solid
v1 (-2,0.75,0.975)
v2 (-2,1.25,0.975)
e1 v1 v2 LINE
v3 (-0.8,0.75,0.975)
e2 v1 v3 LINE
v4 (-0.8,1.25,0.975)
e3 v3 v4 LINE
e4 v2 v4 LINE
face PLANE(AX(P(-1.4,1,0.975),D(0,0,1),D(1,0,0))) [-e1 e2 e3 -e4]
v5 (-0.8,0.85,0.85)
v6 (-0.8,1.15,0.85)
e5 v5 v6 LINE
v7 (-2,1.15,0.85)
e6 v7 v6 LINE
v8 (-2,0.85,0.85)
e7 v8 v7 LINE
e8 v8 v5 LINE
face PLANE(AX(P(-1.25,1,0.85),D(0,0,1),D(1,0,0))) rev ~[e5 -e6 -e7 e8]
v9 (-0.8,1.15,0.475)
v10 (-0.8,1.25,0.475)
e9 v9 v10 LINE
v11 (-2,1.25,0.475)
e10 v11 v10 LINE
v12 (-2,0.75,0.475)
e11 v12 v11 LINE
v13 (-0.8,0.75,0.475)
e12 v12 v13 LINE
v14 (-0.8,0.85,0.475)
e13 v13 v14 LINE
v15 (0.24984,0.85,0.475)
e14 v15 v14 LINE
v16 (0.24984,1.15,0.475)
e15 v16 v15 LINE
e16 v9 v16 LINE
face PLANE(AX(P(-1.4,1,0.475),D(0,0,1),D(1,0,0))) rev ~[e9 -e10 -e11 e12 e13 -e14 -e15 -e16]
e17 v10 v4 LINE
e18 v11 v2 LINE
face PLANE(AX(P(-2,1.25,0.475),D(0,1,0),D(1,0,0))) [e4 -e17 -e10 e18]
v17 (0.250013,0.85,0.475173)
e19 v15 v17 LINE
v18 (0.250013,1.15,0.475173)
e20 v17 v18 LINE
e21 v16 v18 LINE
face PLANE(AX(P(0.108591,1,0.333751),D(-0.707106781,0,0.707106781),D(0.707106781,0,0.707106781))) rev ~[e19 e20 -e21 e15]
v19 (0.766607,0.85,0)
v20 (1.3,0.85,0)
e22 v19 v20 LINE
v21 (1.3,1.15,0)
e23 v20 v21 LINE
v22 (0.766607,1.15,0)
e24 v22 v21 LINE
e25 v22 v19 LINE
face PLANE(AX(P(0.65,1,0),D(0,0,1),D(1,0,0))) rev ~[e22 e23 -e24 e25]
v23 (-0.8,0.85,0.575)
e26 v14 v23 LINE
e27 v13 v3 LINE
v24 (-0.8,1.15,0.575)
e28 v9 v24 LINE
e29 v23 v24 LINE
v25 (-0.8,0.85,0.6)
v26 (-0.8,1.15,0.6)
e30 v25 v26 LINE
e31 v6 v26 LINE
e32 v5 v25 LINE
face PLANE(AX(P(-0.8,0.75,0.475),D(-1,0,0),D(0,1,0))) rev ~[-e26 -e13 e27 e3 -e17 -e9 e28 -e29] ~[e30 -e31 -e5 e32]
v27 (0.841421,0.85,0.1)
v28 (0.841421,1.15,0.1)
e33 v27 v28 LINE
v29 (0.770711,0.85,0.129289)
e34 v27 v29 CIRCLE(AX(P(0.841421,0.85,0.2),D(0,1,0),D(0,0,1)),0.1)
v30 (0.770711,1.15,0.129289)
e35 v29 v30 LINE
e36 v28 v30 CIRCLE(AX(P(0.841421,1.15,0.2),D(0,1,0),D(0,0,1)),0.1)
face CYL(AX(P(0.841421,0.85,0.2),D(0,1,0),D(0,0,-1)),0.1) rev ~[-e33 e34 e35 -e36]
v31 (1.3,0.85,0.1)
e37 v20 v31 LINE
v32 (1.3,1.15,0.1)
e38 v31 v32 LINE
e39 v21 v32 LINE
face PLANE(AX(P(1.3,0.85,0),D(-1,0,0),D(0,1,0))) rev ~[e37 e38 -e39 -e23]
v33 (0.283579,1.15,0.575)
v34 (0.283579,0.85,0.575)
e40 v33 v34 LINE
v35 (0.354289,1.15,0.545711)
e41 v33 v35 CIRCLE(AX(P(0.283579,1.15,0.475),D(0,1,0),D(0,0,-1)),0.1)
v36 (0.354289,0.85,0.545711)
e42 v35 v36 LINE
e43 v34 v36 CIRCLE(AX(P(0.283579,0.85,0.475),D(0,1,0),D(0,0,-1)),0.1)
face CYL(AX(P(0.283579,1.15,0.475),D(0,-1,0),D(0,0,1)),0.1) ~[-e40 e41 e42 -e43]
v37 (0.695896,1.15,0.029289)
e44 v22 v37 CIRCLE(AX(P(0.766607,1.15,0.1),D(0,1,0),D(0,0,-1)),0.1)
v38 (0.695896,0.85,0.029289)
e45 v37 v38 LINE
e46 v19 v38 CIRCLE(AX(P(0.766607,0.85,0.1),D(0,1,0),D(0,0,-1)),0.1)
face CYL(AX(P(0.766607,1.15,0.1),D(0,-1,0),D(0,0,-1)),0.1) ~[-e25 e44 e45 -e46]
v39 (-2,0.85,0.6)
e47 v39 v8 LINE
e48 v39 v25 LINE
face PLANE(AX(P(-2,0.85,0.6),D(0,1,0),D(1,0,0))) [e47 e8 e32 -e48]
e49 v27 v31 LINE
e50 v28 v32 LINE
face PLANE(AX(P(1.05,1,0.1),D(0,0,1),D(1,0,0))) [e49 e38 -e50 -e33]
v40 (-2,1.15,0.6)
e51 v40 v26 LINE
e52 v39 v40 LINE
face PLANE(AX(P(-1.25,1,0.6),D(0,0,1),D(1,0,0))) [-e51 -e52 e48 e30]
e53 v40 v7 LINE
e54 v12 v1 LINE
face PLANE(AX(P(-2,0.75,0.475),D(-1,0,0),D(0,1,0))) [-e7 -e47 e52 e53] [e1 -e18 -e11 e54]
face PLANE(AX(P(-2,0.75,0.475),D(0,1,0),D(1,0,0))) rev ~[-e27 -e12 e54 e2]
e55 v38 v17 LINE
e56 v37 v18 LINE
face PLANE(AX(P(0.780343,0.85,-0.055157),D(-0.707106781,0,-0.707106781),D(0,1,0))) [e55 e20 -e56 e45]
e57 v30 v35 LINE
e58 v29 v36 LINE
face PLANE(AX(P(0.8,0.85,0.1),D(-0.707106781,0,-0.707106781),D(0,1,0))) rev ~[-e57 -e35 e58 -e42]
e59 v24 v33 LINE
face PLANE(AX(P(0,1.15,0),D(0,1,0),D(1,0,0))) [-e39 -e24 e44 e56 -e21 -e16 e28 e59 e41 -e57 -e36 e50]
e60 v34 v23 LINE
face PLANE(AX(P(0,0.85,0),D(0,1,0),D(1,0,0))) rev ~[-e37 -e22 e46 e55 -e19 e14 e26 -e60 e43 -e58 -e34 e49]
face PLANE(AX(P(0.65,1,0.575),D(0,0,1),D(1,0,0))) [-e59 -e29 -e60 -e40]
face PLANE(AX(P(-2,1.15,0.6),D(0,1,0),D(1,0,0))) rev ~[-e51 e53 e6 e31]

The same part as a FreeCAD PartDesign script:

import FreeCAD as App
import Part
import Sketcher
Q = App.Units.Quantity


def edges_at(feature, points):
    """Names of the edges that pass closest to the given points."""
    edges = feature.Shape.Edges
    near = lambda p: min(range(len(edges)), key=lambda i: edges[i].distToShape(Part.Vertex(*p))[0])
    return sorted({f"Edge{near(p) + 1}" for p in points})

doc = App.newDocument("Part")
params = doc.addObject("Spreadsheet::Sheet", "Params")
for row, (alias, value) in enumerate([
    ("sketch1_width", "1.2 mm"),
    ("sketch1_height", "0.5 mm"),
    ("pad1_length", "0.5 mm"),
    ("sketch2_width", "1.5 mm"),
    ("sketch2_height", "0.3 mm"),
    ("pad2_length", "0.1 mm"),
    ("sketch3_width", "1.3 mm"),
    ("sketch3_height", "0.3 mm"),
    ("pad3_length", "0.575 mm"),
    ("sketch4_height", "0.3 mm"),
    ("sketch4_width", "0.25 mm"),
    ("pocket1_length", "0.475 mm"),
    ("sketch5_width", "0.5 mm"),
    ("sketch5_height", "0.3 mm"),
    ("pocket2_length", "0.5 mm"),
    ("sketch6_width", "0.5 mm"),
    ("sketch6_height", "0.3 mm"),
    ("pocket3_length", "0.75 mm"),
    ("sketch7_width", "0.4 mm"),
    ("sketch7_height", "0.3 mm"),
    ("pocket4_length", "0.75 mm"),
    ("fillet_radius", "0.1 mm"),
    ("fillet2_radius", "0.1 mm"),
    ("sketch8_width", "1.5 mm"),
    ("sketch8_height", "0.3 mm"),
    ("pocket5_length", "0.25 mm"),
    ("fillet3_radius", "0.1 mm"),
], start=1):
    params.set(f"A{row}", alias)
    params.set(f"B{row}", "=" + value)
    params.setAlias(f"B{row}", alias)

body = doc.addObject("PartDesign::Body", "Body")

# Sketch on XY plane
sketch1 = body.newObject("Sketcher::SketchObject", "Sketch")
sketch1.AttachmentSupport = (doc.getObject("XY_Plane"), [""])
sketch1.MapMode = "FlatFace"
sketch1.AttachmentOffset = App.Placement(App.Vector(0, 0, 0.475), App.Rotation())
sketch1.addGeometry([
    Part.LineSegment(App.Vector(-2, 4.75, 0), App.Vector(-2, 4.25, 0)),
    Part.LineSegment(App.Vector(-2, 4.25, 0), App.Vector(-0.8, 4.25, 0)),
    Part.LineSegment(App.Vector(-0.8, 4.25, 0), App.Vector(-0.8, 4.75, 0)),
    Part.LineSegment(App.Vector(-0.8, 4.75, 0), App.Vector(-2, 4.75, 0)),
], False)
sketch1.addConstraint([
    Sketcher.Constraint("Coincident", 0, 2, 1, 1),
    Sketcher.Constraint("Coincident", 1, 2, 2, 1),
    Sketcher.Constraint("Coincident", 2, 2, 3, 1),
    Sketcher.Constraint("Coincident", 3, 2, 0, 1),
    Sketcher.Constraint("Vertical", 0),
    Sketcher.Constraint("Horizontal", 1),
    Sketcher.Constraint("Vertical", 2),
    Sketcher.Constraint("Horizontal", 3),
    Sketcher.Constraint("DistanceX", 1, 1, 1, 2, Q("1.2 mm")),
    Sketcher.Constraint("DistanceY", 0, 2, 0, 1, Q("0.5 mm")),
    Sketcher.Constraint("DistanceX", 0, 2, -1, 1, Q("2 mm")),
    Sketcher.Constraint("DistanceY", -1, 1, 0, 2, Q("4.25 mm")),
])
sketch1.setExpression("Constraints[8]", "Params.sketch1_width")
sketch1.setExpression("Constraints[9]", "Params.sketch1_height")
pad1 = body.newObject("PartDesign::Pad", "Pad")
pad1.Profile = sketch1
pad1.setExpression("Length", "Params.pad1_length")

# Sketch on XY plane
sketch2 = body.newObject("Sketcher::SketchObject", "Sketch001")
sketch2.AttachmentSupport = (doc.getObject("XY_Plane"), [""])
sketch2.MapMode = "FlatFace"
sketch2.AttachmentOffset = App.Placement(App.Vector(0, 0, 0.475), App.Rotation())
sketch2.addGeometry([
    Part.LineSegment(App.Vector(-0.8, 4.65, 0), App.Vector(-0.8, 4.35, 0)),
    Part.LineSegment(App.Vector(-0.8, 4.35, 0), App.Vector(0.7, 4.35, 0)),
    Part.LineSegment(App.Vector(0.7, 4.35, 0), App.Vector(0.7, 4.65, 0)),
    Part.LineSegment(App.Vector(0.7, 4.65, 0), App.Vector(-0.8, 4.65, 0)),
], False)
sketch2.addConstraint([
    Sketcher.Constraint("Coincident", 0, 2, 1, 1),
    Sketcher.Constraint("Coincident", 1, 2, 2, 1),
    Sketcher.Constraint("Coincident", 2, 2, 3, 1),
    Sketcher.Constraint("Coincident", 3, 2, 0, 1),
    Sketcher.Constraint("Vertical", 0),
    Sketcher.Constraint("Horizontal", 1),
    Sketcher.Constraint("Vertical", 2),
    Sketcher.Constraint("Horizontal", 3),
    Sketcher.Constraint("DistanceX", 1, 1, 1, 2, Q("1.5 mm")),
    Sketcher.Constraint("DistanceY", 0, 2, 0, 1, Q("0.3 mm")),
    Sketcher.Constraint("DistanceX", 0, 2, -1, 1, Q("0.8 mm")),
    Sketcher.Constraint("DistanceY", -1, 1, 0, 2, Q("4.35 mm")),
])
sketch2.setExpression("Constraints[8]", "Params.sketch2_width")
sketch2.setExpression("Constraints[9]", "Params.sketch2_height")
pad2 = body.newObject("PartDesign::Pad", "Pad001")
pad2.Profile = sketch2
pad2.setExpression("Length", "Params.pad2_length")

# Sketch on XY plane
sketch3 = body.newObject("Sketcher::SketchObject", "Sketch002")
sketch3.AttachmentSupport = (doc.getObject("XY_Plane"), [""])
sketch3.MapMode = "FlatFace"
sketch3.addGeometry([
    Part.LineSegment(App.Vector(0, 4.65, 0), App.Vector(0, 4.35, 0)),
    Part.LineSegment(App.Vector(0, 4.35, 0), App.Vector(1.3, 4.35, 0)),
    Part.LineSegment(App.Vector(1.3, 4.35, 0), App.Vector(1.3, 4.65, 0)),
    Part.LineSegment(App.Vector(1.3, 4.65, 0), App.Vector(0, 4.65, 0)),
], False)
sketch3.addConstraint([
    Sketcher.Constraint("Coincident", 0, 2, 1, 1),
    Sketcher.Constraint("Coincident", 1, 2, 2, 1),
    Sketcher.Constraint("Coincident", 2, 2, 3, 1),
    Sketcher.Constraint("Coincident", 3, 2, 0, 1),
    Sketcher.Constraint("Vertical", 0),
    Sketcher.Constraint("Horizontal", 1),
    Sketcher.Constraint("Vertical", 2),
    Sketcher.Constraint("Horizontal", 3),
    Sketcher.Constraint("PointOnObject", 0, 2, -2),
    Sketcher.Constraint("DistanceX", 1, 1, 1, 2, Q("1.3 mm")),
    Sketcher.Constraint("DistanceY", 0, 2, 0, 1, Q("0.3 mm")),
    Sketcher.Constraint("DistanceY", -1, 1, 0, 2, Q("4.35 mm")),
])
sketch3.setExpression("Constraints[9]", "Params.sketch3_width")
sketch3.setExpression("Constraints[10]", "Params.sketch3_height")
pad3 = body.newObject("PartDesign::Pad", "Pad002")
pad3.Profile = sketch3
pad3.setExpression("Length", "Params.pad3_length")

# Sketch on XY plane
sketch4 = body.newObject("Sketcher::SketchObject", "Sketch003")
sketch4.AttachmentSupport = (doc.getObject("XY_Plane"), [""])
sketch4.MapMode = "FlatFace"
sketch4.addGeometry([
    Part.LineSegment(App.Vector(0, 4.65, 0), App.Vector(0, 4.35, 0)),
    Part.LineSegment(App.Vector(0, 4.35, 0), App.Vector(0.25, 4.35, 0)),
    Part.LineSegment(App.Vector(0.25, 4.35, 0), App.Vector(0.25, 4.65, 0)),
    Part.LineSegment(App.Vector(0.25, 4.65, 0), App.Vector(0, 4.65, 0)),
], False)
sketch4.addConstraint([
    Sketcher.Constraint("Coincident", 0, 2, 1, 1),
    Sketcher.Constraint("Coincident", 1, 2, 2, 1),
    Sketcher.Constraint("Coincident", 2, 2, 3, 1),
    Sketcher.Constraint("Coincident", 3, 2, 0, 1),
    Sketcher.Constraint("Vertical", 0),
    Sketcher.Constraint("Horizontal", 1),
    Sketcher.Constraint("Vertical", 2),
    Sketcher.Constraint("Horizontal", 3),
    Sketcher.Constraint("PointOnObject", 0, 2, -2),
    Sketcher.Constraint("DistanceY", 0, 2, 0, 1, Q("0.3 mm")),
    Sketcher.Constraint("DistanceX", 1, 1, 1, 2, Q("0.25 mm")),
    Sketcher.Constraint("DistanceY", -1, 1, 0, 2, Q("4.35 mm")),
])
sketch4.setExpression("Constraints[9]", "Params.sketch4_height")
sketch4.setExpression("Constraints[10]", "Params.sketch4_width")
pocket1 = body.newObject("PartDesign::Pocket", "Pocket")
pocket1.Profile = sketch4
pocket1.setExpression("Length", "Params.pocket1_length")
pocket1.Reversed = True

# Sketch on XY plane
sketch5 = body.newObject("Sketcher::SketchObject", "Sketch004")
sketch5.AttachmentSupport = (doc.getObject("XY_Plane"), [""])
sketch5.MapMode = "FlatFace"
sketch5.AttachmentOffset = App.Placement(App.Vector(0, 0, 0.1), App.Rotation())
sketch5.addGeometry([
    Part.LineSegment(App.Vector(0.8, 4.65, 0), App.Vector(0.8, 4.35, 0)),
    Part.LineSegment(App.Vector(0.8, 4.35, 0), App.Vector(1.3, 4.35, 0)),
    Part.LineSegment(App.Vector(1.3, 4.35, 0), App.Vector(1.3, 4.65, 0)),
    Part.LineSegment(App.Vector(1.3, 4.65, 0), App.Vector(0.8, 4.65, 0)),
], False)
sketch5.addConstraint([
    Sketcher.Constraint("Coincident", 0, 2, 1, 1),
    Sketcher.Constraint("Coincident", 1, 2, 2, 1),
    Sketcher.Constraint("Coincident", 2, 2, 3, 1),
    Sketcher.Constraint("Coincident", 3, 2, 0, 1),
    Sketcher.Constraint("Vertical", 0),
    Sketcher.Constraint("Horizontal", 1),
    Sketcher.Constraint("Vertical", 2),
    Sketcher.Constraint("Horizontal", 3),
    Sketcher.Constraint("DistanceX", 1, 1, 1, 2, Q("0.5 mm")),
    Sketcher.Constraint("DistanceY", 0, 2, 0, 1, Q("0.3 mm")),
    Sketcher.Constraint("DistanceX", -1, 1, 0, 2, Q("0.8 mm")),
    Sketcher.Constraint("DistanceY", -1, 1, 0, 2, Q("4.35 mm")),
])
sketch5.setExpression("Constraints[8]", "Params.sketch5_width")
sketch5.setExpression("Constraints[9]", "Params.sketch5_height")
pocket2 = body.newObject("PartDesign::Pocket", "Pocket001")
pocket2.Profile = sketch5
pocket2.setExpression("Length", "Params.pocket2_length")
pocket2.Reversed = True

# Sketch on an angled plane
sketch6 = body.newObject("Sketcher::SketchObject", "Sketch005")
sketch6.Placement = App.Placement(App.Vector(0.8, 4.35, 0.1), App.Rotation(App.Vector(0.707106781, 0, 0.707106781), App.Vector(0, 0.999999999, 0), App.Vector(-0.707106781, 0, 0.707106781), "ZXY"))
sketch6.addGeometry([
    Part.LineSegment(App.Vector(0, 0.3, 0), App.Vector(0, 0, 0)),
    Part.LineSegment(App.Vector(0, 0, 0), App.Vector(0.5, 0, 0)),
    Part.LineSegment(App.Vector(0.5, 0, 0), App.Vector(0.5, 0.3, 0)),
    Part.LineSegment(App.Vector(0.5, 0.3, 0), App.Vector(0, 0.3, 0)),
], False)
sketch6.addConstraint([
    Sketcher.Constraint("Coincident", 0, 2, 1, 1),
    Sketcher.Constraint("Coincident", 1, 2, 2, 1),
    Sketcher.Constraint("Coincident", 2, 2, 3, 1),
    Sketcher.Constraint("Coincident", 3, 2, 0, 1),
    Sketcher.Constraint("Vertical", 0),
    Sketcher.Constraint("Horizontal", 1),
    Sketcher.Constraint("Vertical", 2),
    Sketcher.Constraint("Horizontal", 3),
    Sketcher.Constraint("Coincident", 0, 2, -1, 1),
    Sketcher.Constraint("DistanceX", 1, 1, 1, 2, Q("0.5 mm")),
    Sketcher.Constraint("DistanceY", 0, 2, 0, 1, Q("0.3 mm")),
])
sketch6.setExpression("Constraints[9]", "Params.sketch6_width")
sketch6.setExpression("Constraints[10]", "Params.sketch6_height")
pocket3 = body.newObject("PartDesign::Pocket", "Pocket002")
pocket3.Profile = sketch6
pocket3.setExpression("Length", "Params.pocket3_length")
pocket3.Reversed = True

# Sketch on an angled plane
sketch7 = body.newObject("Sketcher::SketchObject", "Sketch006")
sketch7.Placement = App.Placement(App.Vector(0.4975, 4.35, -0.338), App.Rotation(App.Vector(0.707106781, 0, 0.707106781), App.Vector(0, 0.999999999, 0), App.Vector(-0.707106781, 0, 0.707106781), "ZXY"))
sketch7.addGeometry([
    Part.LineSegment(App.Vector(0, 0.3, 0), App.Vector(0, 0, 0)),
    Part.LineSegment(App.Vector(0, 0, 0), App.Vector(0.4, 0, 0)),
    Part.LineSegment(App.Vector(0.4, 0, 0), App.Vector(0.4, 0.3, 0)),
    Part.LineSegment(App.Vector(0.4, 0.3, 0), App.Vector(0, 0.3, 0)),
], False)
sketch7.addConstraint([
    Sketcher.Constraint("Coincident", 0, 2, 1, 1),
    Sketcher.Constraint("Coincident", 1, 2, 2, 1),
    Sketcher.Constraint("Coincident", 2, 2, 3, 1),
    Sketcher.Constraint("Coincident", 3, 2, 0, 1),
    Sketcher.Constraint("Vertical", 0),
    Sketcher.Constraint("Horizontal", 1),
    Sketcher.Constraint("Vertical", 2),
    Sketcher.Constraint("Horizontal", 3),
    Sketcher.Constraint("Coincident", 0, 2, -1, 1),
    Sketcher.Constraint("DistanceX", 1, 1, 1, 2, Q("0.4 mm")),
    Sketcher.Constraint("DistanceY", 0, 2, 0, 1, Q("0.3 mm")),
])
sketch7.setExpression("Constraints[9]", "Params.sketch7_width")
sketch7.setExpression("Constraints[10]", "Params.sketch7_height")
pocket4 = body.newObject("PartDesign::Pocket", "Pocket003")
pocket4.Profile = sketch7
pocket4.setExpression("Length", "Params.pocket4_length")
pocket4.Reversed = True
doc.recompute()

fillet = body.newObject("PartDesign::Fillet", "Fillet")
fillet.Base = (pocket4, edges_at(pocket4, [(0.325, 4.5, 0.575)]))
fillet.setExpression("Radius", "Params.fillet_radius")
doc.recompute()

fillet2 = body.newObject("PartDesign::Fillet", "Fillet001")
fillet2.Base = (fillet, edges_at(fillet, [(0.725, 4.5, 0)]))
fillet2.setExpression("Radius", "Params.fillet2_radius")

# Sketch on XY plane
sketch8 = body.newObject("Sketcher::SketchObject", "Sketch007")
sketch8.AttachmentSupport = (doc.getObject("XY_Plane"), [""])
sketch8.MapMode = "FlatFace"
sketch8.AttachmentOffset = App.Placement(App.Vector(0, 0, 0.6), App.Rotation())
sketch8.addGeometry([
    Part.LineSegment(App.Vector(-2, 4.65, 0), App.Vector(-2, 4.35, 0)),
    Part.LineSegment(App.Vector(-2, 4.35, 0), App.Vector(-0.5, 4.35, 0)),
    Part.LineSegment(App.Vector(-0.5, 4.35, 0), App.Vector(-0.5, 4.65, 0)),
    Part.LineSegment(App.Vector(-0.5, 4.65, 0), App.Vector(-2, 4.65, 0)),
], False)
sketch8.addConstraint([
    Sketcher.Constraint("Coincident", 0, 2, 1, 1),
    Sketcher.Constraint("Coincident", 1, 2, 2, 1),
    Sketcher.Constraint("Coincident", 2, 2, 3, 1),
    Sketcher.Constraint("Coincident", 3, 2, 0, 1),
    Sketcher.Constraint("Vertical", 0),
    Sketcher.Constraint("Horizontal", 1),
    Sketcher.Constraint("Vertical", 2),
    Sketcher.Constraint("Horizontal", 3),
    Sketcher.Constraint("DistanceX", 1, 1, 1, 2, Q("1.5 mm")),
    Sketcher.Constraint("DistanceY", 0, 2, 0, 1, Q("0.3 mm")),
    Sketcher.Constraint("DistanceX", 0, 2, -1, 1, Q("2 mm")),
    Sketcher.Constraint("DistanceY", -1, 1, 0, 2, Q("4.35 mm")),
])
sketch8.setExpression("Constraints[8]", "Params.sketch8_width")
sketch8.setExpression("Constraints[9]", "Params.sketch8_height")
pocket5 = body.newObject("PartDesign::Pocket", "Pocket004")
pocket5.Profile = sketch8
pocket5.setExpression("Length", "Params.pocket5_length")
pocket5.Reversed = True
doc.recompute()

fillet3 = body.newObject("PartDesign::Fillet", "Fillet002")
fillet3.Base = (pocket5, edges_at(pocket5, [(0.8, 4.5, 0.1)]))
fillet3.setExpression("Radius", "Params.fillet3_radius")
body2 = doc.addObject("PartDesign::Body", "Body001")
doc.recompute()

body.Placement = App.Placement(App.Vector(0, -3.5, 0), App.Rotation(App.Vector(0, 0, 1), 0))
boolean = body2.newObject("PartDesign::Boolean", "Boolean")
boolean.Type = "Fuse"
boolean.addObjects([body])

doc.recompute()
